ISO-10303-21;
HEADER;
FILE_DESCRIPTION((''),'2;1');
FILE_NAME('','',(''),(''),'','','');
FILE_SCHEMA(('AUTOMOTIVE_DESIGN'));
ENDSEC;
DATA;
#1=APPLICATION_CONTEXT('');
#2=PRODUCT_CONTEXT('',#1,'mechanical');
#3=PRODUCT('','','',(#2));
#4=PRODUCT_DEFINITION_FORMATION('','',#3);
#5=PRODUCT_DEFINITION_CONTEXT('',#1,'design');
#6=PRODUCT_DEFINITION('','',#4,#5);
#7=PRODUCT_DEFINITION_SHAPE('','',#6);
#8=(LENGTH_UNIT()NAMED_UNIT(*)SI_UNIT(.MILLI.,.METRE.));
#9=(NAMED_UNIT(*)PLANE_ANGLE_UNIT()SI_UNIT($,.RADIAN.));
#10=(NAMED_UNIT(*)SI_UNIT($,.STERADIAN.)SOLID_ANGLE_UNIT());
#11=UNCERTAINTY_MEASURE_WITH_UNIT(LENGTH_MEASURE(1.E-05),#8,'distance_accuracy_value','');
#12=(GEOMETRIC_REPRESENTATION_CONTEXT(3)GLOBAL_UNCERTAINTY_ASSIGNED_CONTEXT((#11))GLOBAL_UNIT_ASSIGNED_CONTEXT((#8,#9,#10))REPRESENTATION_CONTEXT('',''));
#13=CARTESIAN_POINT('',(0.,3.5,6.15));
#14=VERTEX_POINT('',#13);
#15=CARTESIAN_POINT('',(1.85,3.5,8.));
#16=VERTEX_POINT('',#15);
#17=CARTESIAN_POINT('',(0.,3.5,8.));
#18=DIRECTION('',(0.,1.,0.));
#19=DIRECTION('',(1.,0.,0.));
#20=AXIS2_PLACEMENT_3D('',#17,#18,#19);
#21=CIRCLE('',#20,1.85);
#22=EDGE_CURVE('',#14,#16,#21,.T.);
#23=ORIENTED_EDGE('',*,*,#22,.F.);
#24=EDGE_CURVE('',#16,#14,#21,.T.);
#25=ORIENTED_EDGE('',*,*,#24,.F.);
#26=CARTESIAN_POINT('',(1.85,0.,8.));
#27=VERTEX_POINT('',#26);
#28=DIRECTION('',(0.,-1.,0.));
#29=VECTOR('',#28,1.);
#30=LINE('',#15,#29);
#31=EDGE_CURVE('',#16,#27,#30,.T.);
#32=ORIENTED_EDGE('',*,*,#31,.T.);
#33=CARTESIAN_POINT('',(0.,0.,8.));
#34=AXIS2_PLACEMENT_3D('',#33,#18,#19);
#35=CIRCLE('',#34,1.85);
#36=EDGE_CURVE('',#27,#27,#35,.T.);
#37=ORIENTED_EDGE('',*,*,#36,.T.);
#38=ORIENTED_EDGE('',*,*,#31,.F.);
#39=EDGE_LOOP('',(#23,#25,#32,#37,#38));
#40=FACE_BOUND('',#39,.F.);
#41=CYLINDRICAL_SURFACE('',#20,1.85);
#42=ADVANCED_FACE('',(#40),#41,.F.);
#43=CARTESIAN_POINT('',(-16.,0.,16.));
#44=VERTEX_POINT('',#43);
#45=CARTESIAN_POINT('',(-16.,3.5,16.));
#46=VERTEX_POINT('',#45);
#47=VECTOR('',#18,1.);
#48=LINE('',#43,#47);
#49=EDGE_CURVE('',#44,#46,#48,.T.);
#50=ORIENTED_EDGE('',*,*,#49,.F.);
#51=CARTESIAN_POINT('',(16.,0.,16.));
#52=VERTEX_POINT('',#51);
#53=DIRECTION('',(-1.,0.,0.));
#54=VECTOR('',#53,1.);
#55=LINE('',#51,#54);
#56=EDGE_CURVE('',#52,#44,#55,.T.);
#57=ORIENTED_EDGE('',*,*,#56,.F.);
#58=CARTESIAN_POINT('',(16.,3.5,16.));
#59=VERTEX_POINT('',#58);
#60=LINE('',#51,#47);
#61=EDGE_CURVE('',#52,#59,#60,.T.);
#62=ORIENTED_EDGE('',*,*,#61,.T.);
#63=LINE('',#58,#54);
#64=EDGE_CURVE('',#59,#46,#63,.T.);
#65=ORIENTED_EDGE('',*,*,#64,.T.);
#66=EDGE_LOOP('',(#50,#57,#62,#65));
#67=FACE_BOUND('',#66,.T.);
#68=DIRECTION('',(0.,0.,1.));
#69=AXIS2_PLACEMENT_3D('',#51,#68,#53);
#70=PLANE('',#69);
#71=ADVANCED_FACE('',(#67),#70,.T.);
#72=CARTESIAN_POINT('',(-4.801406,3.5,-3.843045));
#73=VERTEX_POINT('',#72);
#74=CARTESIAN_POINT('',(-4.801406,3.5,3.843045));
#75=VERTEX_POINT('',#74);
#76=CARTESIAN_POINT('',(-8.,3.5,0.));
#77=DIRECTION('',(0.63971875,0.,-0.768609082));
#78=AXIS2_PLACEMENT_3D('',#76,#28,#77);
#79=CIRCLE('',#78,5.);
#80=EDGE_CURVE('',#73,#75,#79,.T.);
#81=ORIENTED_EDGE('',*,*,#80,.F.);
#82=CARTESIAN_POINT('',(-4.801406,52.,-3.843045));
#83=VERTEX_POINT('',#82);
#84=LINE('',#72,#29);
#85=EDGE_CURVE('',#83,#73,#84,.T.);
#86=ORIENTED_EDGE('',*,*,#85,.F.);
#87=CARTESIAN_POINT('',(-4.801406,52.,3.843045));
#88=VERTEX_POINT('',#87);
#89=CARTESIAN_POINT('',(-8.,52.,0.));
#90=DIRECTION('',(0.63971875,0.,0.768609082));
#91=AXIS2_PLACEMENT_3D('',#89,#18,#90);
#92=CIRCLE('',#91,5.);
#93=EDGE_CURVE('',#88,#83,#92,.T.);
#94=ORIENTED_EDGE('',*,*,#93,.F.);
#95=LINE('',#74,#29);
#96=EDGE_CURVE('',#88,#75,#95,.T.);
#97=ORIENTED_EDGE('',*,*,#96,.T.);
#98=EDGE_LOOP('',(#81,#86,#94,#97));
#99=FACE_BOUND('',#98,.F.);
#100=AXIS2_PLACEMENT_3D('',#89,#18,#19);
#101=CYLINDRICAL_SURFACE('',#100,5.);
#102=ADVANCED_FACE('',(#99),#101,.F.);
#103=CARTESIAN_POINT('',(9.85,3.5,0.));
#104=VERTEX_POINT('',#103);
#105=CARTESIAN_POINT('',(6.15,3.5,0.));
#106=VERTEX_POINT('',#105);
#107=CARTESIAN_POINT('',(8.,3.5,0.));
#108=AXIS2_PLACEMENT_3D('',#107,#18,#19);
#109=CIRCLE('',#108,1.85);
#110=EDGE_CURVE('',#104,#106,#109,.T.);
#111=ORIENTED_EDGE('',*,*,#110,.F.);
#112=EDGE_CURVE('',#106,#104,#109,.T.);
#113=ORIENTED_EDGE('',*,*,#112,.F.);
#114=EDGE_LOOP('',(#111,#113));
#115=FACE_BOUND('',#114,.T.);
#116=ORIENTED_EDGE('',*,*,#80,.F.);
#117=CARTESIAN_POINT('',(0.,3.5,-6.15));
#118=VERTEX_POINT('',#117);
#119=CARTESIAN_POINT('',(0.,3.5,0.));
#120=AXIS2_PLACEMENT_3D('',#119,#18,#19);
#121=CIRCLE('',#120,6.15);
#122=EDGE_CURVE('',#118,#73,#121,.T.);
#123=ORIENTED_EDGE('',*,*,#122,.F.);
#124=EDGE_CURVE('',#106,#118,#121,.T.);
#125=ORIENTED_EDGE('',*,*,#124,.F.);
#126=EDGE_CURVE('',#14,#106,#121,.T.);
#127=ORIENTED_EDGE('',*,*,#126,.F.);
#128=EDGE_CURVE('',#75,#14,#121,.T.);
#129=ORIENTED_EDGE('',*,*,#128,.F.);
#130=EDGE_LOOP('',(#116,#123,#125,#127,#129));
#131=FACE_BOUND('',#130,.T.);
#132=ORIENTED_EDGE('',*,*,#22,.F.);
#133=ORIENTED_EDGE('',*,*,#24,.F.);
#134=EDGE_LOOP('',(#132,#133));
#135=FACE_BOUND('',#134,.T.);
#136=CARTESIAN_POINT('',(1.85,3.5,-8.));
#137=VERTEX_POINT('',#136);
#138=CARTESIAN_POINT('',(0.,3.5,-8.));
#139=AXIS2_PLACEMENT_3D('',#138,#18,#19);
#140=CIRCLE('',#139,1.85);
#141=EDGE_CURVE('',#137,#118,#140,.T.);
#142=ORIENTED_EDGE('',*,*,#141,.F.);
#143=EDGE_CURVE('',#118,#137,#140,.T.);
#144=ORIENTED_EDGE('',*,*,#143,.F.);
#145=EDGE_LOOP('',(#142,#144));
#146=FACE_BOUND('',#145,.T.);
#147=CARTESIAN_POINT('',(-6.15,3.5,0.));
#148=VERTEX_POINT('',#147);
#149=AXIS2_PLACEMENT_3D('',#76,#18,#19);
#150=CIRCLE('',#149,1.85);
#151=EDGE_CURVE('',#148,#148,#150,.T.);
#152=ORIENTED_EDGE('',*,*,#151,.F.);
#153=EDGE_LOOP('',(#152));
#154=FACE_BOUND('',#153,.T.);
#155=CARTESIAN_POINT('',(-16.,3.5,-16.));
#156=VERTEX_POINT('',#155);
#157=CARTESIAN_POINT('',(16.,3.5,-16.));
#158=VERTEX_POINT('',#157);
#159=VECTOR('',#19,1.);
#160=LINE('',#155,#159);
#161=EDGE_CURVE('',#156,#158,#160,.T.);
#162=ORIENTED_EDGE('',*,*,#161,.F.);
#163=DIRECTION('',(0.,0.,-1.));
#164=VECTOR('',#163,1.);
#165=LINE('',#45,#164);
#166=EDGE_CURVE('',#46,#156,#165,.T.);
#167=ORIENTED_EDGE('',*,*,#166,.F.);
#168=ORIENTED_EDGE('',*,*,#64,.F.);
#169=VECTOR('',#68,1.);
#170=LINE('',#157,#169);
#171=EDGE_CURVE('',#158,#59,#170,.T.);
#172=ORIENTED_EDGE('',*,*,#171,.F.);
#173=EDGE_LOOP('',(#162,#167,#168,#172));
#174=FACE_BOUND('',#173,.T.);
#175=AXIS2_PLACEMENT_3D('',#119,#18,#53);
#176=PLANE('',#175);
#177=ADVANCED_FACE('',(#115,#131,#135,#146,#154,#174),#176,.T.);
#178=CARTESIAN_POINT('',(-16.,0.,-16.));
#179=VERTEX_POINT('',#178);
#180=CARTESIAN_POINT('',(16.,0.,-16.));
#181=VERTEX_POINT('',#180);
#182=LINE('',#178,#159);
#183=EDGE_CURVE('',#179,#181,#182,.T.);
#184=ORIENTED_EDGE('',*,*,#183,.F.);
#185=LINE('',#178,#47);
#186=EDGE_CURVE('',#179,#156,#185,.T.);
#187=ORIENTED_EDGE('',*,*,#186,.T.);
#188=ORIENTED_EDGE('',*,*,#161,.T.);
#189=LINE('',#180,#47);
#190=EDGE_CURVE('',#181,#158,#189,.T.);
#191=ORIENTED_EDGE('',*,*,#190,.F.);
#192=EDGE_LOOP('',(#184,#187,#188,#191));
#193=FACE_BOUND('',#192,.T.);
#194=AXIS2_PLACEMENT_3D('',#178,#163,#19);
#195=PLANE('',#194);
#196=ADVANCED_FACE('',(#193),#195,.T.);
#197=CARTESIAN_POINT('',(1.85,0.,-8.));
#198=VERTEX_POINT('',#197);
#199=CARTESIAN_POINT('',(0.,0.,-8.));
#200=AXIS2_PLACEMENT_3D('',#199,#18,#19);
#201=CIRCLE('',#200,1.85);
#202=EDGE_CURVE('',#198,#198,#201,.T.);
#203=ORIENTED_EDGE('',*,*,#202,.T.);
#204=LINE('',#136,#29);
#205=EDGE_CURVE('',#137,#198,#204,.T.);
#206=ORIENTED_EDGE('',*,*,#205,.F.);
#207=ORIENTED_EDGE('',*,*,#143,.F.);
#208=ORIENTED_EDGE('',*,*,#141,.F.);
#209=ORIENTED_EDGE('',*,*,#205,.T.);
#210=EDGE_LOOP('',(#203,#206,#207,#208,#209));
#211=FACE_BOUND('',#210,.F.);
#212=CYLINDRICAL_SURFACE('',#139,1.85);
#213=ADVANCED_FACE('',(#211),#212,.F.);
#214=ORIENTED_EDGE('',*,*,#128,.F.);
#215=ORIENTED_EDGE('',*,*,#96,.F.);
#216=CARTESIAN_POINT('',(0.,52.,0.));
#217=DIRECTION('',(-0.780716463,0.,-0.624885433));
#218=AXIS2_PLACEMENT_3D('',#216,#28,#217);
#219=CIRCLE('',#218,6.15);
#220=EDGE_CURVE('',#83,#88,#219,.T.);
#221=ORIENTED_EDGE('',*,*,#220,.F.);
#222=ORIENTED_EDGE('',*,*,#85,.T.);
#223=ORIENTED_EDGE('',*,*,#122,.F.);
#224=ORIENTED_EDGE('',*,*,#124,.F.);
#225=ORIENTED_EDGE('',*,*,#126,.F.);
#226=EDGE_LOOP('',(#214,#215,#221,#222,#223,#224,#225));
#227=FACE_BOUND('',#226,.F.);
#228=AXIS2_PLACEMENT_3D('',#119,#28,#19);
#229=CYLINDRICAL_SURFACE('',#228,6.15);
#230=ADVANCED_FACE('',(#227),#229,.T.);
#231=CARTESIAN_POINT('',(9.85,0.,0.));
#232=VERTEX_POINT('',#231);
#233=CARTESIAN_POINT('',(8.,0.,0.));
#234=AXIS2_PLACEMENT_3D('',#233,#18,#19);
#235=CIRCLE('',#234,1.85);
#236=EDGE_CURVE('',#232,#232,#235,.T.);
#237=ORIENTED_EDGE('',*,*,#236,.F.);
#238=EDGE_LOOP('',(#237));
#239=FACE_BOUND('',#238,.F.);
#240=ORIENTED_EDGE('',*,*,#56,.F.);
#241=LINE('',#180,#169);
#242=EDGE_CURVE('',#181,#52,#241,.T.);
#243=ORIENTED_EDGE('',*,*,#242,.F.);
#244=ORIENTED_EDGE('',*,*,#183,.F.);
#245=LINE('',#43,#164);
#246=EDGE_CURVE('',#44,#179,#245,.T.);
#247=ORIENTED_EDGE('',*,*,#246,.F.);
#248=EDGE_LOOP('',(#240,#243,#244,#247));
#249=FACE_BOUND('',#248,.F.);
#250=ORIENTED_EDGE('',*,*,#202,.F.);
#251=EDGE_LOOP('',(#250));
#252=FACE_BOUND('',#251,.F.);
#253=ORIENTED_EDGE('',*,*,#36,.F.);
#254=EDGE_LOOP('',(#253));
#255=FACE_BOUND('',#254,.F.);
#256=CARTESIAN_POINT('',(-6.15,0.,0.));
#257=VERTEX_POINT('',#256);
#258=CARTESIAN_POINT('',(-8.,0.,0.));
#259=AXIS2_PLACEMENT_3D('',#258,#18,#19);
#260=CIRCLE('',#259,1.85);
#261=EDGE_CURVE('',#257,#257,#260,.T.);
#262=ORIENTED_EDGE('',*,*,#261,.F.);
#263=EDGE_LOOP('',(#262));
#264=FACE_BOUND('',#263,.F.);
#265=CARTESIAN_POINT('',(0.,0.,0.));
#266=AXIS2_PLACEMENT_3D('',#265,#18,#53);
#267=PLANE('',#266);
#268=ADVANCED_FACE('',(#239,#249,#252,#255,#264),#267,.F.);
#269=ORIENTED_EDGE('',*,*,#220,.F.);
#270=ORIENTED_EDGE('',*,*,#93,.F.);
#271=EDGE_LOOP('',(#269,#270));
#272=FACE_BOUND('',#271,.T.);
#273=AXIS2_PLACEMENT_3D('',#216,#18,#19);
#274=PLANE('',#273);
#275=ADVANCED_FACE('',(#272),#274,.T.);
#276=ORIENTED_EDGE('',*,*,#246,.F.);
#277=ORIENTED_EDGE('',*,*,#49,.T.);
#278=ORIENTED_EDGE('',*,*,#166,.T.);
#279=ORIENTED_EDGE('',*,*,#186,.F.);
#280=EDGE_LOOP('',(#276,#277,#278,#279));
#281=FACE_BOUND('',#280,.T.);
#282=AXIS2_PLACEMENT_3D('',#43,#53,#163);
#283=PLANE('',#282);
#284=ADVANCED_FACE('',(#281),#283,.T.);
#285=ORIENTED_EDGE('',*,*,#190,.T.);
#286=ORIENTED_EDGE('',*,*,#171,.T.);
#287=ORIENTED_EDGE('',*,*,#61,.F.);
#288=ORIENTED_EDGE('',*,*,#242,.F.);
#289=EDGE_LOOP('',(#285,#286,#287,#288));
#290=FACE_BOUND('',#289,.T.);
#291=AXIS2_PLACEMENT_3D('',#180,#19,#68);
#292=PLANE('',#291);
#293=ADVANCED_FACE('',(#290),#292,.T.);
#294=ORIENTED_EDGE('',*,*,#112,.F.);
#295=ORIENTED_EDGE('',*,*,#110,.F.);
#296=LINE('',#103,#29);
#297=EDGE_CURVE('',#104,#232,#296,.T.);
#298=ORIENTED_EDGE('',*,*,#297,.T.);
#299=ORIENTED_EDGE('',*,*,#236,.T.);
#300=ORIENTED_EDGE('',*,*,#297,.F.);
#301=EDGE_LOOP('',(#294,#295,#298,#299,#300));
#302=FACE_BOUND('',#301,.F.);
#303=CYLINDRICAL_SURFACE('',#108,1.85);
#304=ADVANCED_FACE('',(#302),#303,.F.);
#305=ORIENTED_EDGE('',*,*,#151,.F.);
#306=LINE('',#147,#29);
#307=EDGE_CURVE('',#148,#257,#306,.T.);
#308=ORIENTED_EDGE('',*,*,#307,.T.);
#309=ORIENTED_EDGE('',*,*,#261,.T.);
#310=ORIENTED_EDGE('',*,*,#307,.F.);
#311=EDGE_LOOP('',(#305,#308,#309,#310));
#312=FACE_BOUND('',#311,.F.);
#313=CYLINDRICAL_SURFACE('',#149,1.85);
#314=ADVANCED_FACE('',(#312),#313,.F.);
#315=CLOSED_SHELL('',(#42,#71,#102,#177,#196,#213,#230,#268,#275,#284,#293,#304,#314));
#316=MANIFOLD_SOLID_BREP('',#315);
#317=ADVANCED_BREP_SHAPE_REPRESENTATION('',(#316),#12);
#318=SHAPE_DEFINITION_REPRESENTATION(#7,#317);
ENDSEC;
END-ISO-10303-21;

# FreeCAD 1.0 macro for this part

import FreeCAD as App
import Part
import Sketcher

doc = App.newDocument("Part")
params = doc.addObject("Spreadsheet::Sheet", "Params")
for row, (alias, value) in enumerate([
    ("sketch1_width", "32 mm"),
    ("pad1_length", "3.5 mm"),
    ("sketch2_diameter", "3.7 mm"),
    ("pocket1_length", "3.5 mm"),
    ("sketch3_diameter", "12.3 mm"),
    ("pad2_length", "48.5 mm"),
    ("sketch4_diameter", "10 mm"),
    ("sketch4_diameter2", "3.7 mm"),
    ("pocket2_length", "48.5 mm"),
], start=1):
    params.set(f"A{row}", alias)
    params.set(f"B{row}", "=" + value)
    params.setAlias(f"B{row}", alias)

body = doc.addObject("PartDesign::Body", "Body")

# Sketch on XZ plane
sketch1 = doc.addObject("Sketcher::SketchObject", "Sketch")
body.addObject(sketch1)
sketch1.AttachmentSupport = (doc.XZ_Plane, [""])
sketch1.MapMode = "FlatFace"
sketch1.addGeometry([
    Part.LineSegment(App.Vector(-16, 16, 0), App.Vector(16, 16, 0)),
    Part.LineSegment(App.Vector(16, 16, 0), App.Vector(16, -16, 0)),
    Part.LineSegment(App.Vector(16, -16, 0), App.Vector(-16, -16, 0)),
    Part.LineSegment(App.Vector(-16, -16, 0), App.Vector(-16, 16, 0)),
], False)
sketch1.addConstraint([
    Sketcher.Constraint("Coincident", 0, 2, 1, 1),
    Sketcher.Constraint("Coincident", 1, 2, 2, 1),
    Sketcher.Constraint("Coincident", 2, 2, 3, 1),
    Sketcher.Constraint("Coincident", 3, 2, 0, 1),
    Sketcher.Constraint("Horizontal", 0),
    Sketcher.Constraint("Vertical", 1),
    Sketcher.Constraint("Horizontal", 2),
    Sketcher.Constraint("Vertical", 3),
    Sketcher.Constraint("Symmetric", 0, 2, 2, 2, -1, 1),
    Sketcher.Constraint("Equal", 2, 1),
    Sketcher.Constraint("DistanceX", 0, 1, 0, 2, 32.0),
])
sketch1.setExpression("Constraints[10]", "Params.sketch1_width")
pad1 = doc.addObject("PartDesign::Pad", "Pad")
body.addObject(pad1)
pad1.Profile = sketch1
pad1.setExpression("Length", "Params.pad1_length")
pad1.Reversed = True

# Sketch on XZ plane
sketch2 = doc.addObject("Sketcher::SketchObject", "Sketch001")
body.addObject(sketch2)
sketch2.AttachmentSupport = (doc.XZ_Plane, [""])
sketch2.MapMode = "FlatFace"
sketch2.AttachmentOffset = App.Placement(App.Vector(0, 0, -3.5), App.Rotation())
sketch2.addGeometry([
    Part.Circle(App.Vector(0, -8, 0), App.Vector(0, 0, 1), 1.85),
    Part.Circle(App.Vector(-8, 0, 0), App.Vector(0, 0, 1), 1.85),
    Part.Circle(App.Vector(0, 8, 0), App.Vector(0, 0, 1), 1.85),
    Part.Circle(App.Vector(8, 0, 0), App.Vector(0, 0, 1), 1.85),
], False)
sketch2.addConstraint([
    Sketcher.Constraint("Equal", 0, 1),
    Sketcher.Constraint("Equal", 1, 2),
    Sketcher.Constraint("Equal", 2, 3),
    Sketcher.Constraint("Symmetric", 0, 3, 2, 3, -1, 1),
    Sketcher.Constraint("Symmetric", 1, 3, 3, 3, -1, 1),
    Sketcher.Constraint("PointOnObject", 0, 3, -2),
    Sketcher.Constraint("PointOnObject", 1, 3, -1),
    Sketcher.Constraint("Diameter", 0, 3.7),
    Sketcher.Constraint("DistanceY", 0, 3, -1, 1, 8.0),
    Sketcher.Constraint("DistanceX", 1, 3, -1, 1, 8.0),
])
sketch2.setExpression("Constraints[7]", "Params.sketch2_diameter")
pocket1 = doc.addObject("PartDesign::Pocket", "Pocket")
body.addObject(pocket1)
pocket1.Profile = sketch2
pocket1.setExpression("Length", "Params.pocket1_length")
pocket1.Reversed = True

# Sketch on XZ plane
sketch3 = doc.addObject("Sketcher::SketchObject", "Sketch002")
body.addObject(sketch3)
sketch3.AttachmentSupport = (doc.XZ_Plane, [""])
sketch3.MapMode = "FlatFace"
sketch3.AttachmentOffset = App.Placement(App.Vector(0, 0, -3.5), App.Rotation())
sketch3.addGeometry(Part.Circle(App.Vector(0, 0, 0), App.Vector(0, 0, 1), 6.15), False)
sketch3.addConstraint([
    Sketcher.Constraint("Coincident", 0, 3, -1, 1),
    Sketcher.Constraint("Diameter", 0, 12.3),
])
sketch3.setExpression("Constraints[1]", "Params.sketch3_diameter")
pad2 = doc.addObject("PartDesign::Pad", "Pad001")
body.addObject(pad2)
pad2.Profile = sketch3
pad2.setExpression("Length", "Params.pad2_length")
pad2.Reversed = True

# Sketch on XZ plane
sketch4 = doc.addObject("Sketcher::SketchObject", "Sketch003")
body.addObject(sketch4)
sketch4.AttachmentSupport = (doc.XZ_Plane, [""])
sketch4.MapMode = "FlatFace"
sketch4.AttachmentOffset = App.Placement(App.Vector(0, 0, -52), App.Rotation())
sketch4.addGeometry([
    Part.Circle(App.Vector(-8, 0, 0), App.Vector(0, 0, 1), 5),
    Part.Circle(App.Vector(-8, 0, 0), App.Vector(0, 0, 1), 1.85),
], False)
sketch4.addConstraint([
    Sketcher.Constraint("Coincident", 1, 3, 0, 3),
    Sketcher.Constraint("PointOnObject", 0, 3, -1),
    Sketcher.Constraint("Diameter", 0, 10.0),
    Sketcher.Constraint("Diameter", 1, 3.7),
    Sketcher.Constraint("DistanceX", 0, 3, -1, 1, 8.0),
])
sketch4.setExpression("Constraints[2]", "Params.sketch4_diameter")
sketch4.setExpression("Constraints[3]", "Params.sketch4_diameter2")
pocket2 = doc.addObject("PartDesign::Pocket", "Pocket001")
body.addObject(pocket2)
pocket2.Profile = sketch4
pocket2.setExpression("Length", "Params.pocket2_length")
pocket2.Reversed = True

doc.recompute()
